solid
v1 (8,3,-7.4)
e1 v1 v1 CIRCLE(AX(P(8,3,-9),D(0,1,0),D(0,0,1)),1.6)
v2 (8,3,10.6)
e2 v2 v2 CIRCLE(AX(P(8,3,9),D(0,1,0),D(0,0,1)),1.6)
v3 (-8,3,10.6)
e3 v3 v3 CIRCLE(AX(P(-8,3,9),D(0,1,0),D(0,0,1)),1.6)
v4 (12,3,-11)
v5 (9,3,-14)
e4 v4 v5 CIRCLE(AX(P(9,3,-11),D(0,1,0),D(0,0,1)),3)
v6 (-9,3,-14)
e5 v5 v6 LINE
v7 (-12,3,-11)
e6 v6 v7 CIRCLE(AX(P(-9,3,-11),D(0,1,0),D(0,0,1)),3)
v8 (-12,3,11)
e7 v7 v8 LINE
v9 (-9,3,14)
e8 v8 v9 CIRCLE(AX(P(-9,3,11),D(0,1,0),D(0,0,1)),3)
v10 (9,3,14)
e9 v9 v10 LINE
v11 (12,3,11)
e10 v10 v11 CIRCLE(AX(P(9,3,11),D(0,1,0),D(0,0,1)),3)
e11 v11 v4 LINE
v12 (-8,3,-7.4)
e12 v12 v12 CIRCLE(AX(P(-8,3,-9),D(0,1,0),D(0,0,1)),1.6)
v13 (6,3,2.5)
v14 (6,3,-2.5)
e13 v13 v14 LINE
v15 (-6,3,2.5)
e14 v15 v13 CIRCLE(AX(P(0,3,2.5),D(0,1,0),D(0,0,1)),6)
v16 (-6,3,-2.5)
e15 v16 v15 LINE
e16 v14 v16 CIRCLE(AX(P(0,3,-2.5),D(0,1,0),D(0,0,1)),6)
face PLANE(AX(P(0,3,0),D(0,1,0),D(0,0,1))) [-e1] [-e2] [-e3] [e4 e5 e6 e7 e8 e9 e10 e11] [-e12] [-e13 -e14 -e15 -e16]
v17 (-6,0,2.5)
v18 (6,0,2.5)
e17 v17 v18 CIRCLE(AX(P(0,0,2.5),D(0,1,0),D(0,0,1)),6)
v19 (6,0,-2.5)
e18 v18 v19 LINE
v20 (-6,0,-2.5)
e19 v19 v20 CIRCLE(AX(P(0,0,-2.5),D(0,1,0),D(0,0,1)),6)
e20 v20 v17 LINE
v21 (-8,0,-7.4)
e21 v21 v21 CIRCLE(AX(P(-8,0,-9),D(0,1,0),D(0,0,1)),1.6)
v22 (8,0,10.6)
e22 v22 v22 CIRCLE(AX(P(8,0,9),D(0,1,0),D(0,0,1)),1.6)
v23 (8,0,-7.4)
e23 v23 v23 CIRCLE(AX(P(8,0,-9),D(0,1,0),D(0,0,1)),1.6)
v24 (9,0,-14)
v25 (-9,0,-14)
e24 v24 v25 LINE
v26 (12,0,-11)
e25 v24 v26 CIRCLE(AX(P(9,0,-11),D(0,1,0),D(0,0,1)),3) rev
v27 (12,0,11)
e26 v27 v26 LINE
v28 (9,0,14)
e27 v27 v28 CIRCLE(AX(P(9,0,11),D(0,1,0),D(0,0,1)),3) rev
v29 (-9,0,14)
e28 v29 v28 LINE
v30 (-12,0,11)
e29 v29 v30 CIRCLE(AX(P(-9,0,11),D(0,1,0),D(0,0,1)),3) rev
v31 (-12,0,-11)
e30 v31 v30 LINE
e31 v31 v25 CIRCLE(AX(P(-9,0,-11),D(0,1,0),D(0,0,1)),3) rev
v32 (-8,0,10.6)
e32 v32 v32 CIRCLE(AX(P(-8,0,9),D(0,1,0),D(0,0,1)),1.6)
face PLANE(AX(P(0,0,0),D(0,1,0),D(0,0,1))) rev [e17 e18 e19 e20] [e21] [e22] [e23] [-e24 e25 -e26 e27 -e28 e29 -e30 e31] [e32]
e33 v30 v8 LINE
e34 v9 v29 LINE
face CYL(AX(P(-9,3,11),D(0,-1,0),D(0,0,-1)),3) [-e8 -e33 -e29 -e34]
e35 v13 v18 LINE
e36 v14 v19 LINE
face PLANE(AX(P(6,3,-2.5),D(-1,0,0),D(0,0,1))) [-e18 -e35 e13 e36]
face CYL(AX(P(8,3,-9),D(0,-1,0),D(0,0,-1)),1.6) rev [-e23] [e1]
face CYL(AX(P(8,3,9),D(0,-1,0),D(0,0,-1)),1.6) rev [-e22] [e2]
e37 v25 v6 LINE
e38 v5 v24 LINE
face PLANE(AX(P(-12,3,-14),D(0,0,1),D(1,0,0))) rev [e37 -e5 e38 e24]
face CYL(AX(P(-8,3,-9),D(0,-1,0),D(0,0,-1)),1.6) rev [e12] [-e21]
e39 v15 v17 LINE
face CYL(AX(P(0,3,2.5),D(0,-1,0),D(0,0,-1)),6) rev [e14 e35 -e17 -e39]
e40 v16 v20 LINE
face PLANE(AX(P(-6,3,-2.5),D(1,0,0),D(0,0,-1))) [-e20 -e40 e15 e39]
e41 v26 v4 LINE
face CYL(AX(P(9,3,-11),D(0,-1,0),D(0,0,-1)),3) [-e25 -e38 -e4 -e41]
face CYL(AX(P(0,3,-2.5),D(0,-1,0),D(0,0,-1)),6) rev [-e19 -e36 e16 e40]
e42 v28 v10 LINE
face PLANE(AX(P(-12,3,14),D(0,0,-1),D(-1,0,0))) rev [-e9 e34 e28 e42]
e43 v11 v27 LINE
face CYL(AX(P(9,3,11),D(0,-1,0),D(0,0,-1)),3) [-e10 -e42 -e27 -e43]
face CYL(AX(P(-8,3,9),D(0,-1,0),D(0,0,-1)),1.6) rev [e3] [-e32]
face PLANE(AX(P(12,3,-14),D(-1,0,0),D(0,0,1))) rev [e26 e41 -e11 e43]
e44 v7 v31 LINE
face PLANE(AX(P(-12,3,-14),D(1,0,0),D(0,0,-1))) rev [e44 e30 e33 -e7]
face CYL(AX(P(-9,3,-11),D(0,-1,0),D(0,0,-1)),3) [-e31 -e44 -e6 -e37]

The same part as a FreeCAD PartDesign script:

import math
import FreeCAD as App
import Part
import Sketcher
from FreeCAD import Vector


def edges_at(feature, points):
    """Names of the edges that pass closest to the given points."""
    edges = feature.Shape.Edges
    near = lambda p: min(range(len(edges)), key=lambda i: edges[i].distToShape(Part.Vertex(*p))[0])
    return sorted({f"Edge{near(p) + 1}" for p in points})

doc = App.newDocument("Part")
params = doc.addObject("Spreadsheet::Sheet", "Params")
for row, (alias, value) in enumerate([
    ("sketch1_radius", "6 mm"),
    ("sketch1_diameter", "3.2 mm"),
    ("sketch1_width", "24 mm"),
    ("sketch1_height", "28 mm"),
    ("sketch1_height2", "5 mm"),
    ("pad1_length", "3 mm"),
    ("fillet_radius", "3 mm"),
], start=1):
    params.set(f"A{row}", alias)
    params.set(f"B{row}", "=" + value)
    params.setAlias(f"B{row}", alias)

body = doc.addObject("PartDesign::Body", "Body")

# Sketch on XZ plane
sketch1 = doc.addObject("Sketcher::SketchObject", "Sketch")
body.addObject(sketch1)
sketch1.AttachmentSupport = (doc.XZ_Plane, [""])
sketch1.MapMode = "FlatFace"
sketch1.addGeometry([
    Part.LineSegment(Vector(-12, -14, 0), Vector(-12, 14, 0)),  # 0
    Part.LineSegment(Vector(-12, 14, 0), Vector(12, 14, 0)),  # 1
    Part.LineSegment(Vector(12, 14, 0), Vector(12, -14, 0)),  # 2
    Part.LineSegment(Vector(12, -14, 0), Vector(-12, -14, 0)),  # 3
    Part.Circle(Vector(-8, 9, 0), Vector(0, 0, 1), 1.6),  # 4
    Part.Circle(Vector(8, 9, 0), Vector(0, 0, 1), 1.6),  # 5
    Part.Circle(Vector(-8, -9, 0), Vector(0, 0, 1), 1.6),  # 6
    Part.ArcOfCircle(Part.Circle(Vector(0, -2.5, 0), Vector(0, 0, 1), 6), math.radians(180), math.radians(360)),  # 7
    Part.LineSegment(Vector(6, -2.5, 0), Vector(6, 2.5, 0)),  # 8
    Part.ArcOfCircle(Part.Circle(Vector(0, 2.5, 0), Vector(0, 0, 1), 6), math.radians(0), math.radians(180)),  # 9
    Part.LineSegment(Vector(-6, 2.5, 0), Vector(-6, -2.5, 0)),  # 10
    Part.Circle(Vector(8, -9, 0), Vector(0, 0, 1), 1.6),  # 11
], False)
sketch1.addConstraint([
    Sketcher.Constraint("Coincident", 0, 2, 1, 1),
    Sketcher.Constraint("Coincident", 1, 2, 2, 1),
    Sketcher.Constraint("Coincident", 2, 2, 3, 1),
    Sketcher.Constraint("Coincident", 3, 2, 0, 1),
    Sketcher.Constraint("Tangent", 7, 2, 8, 1),
    Sketcher.Constraint("Tangent", 8, 2, 9, 1),
    Sketcher.Constraint("Tangent", 9, 2, 10, 1),
    Sketcher.Constraint("Tangent", 10, 2, 7, 1),
    Sketcher.Constraint("Vertical", 0),
    Sketcher.Constraint("Horizontal", 1),
    Sketcher.Constraint("Vertical", 2),
    Sketcher.Constraint("Horizontal", 3),
    Sketcher.Constraint("Vertical", 8),
    Sketcher.Constraint("Vertical", 10),
    Sketcher.Constraint("Equal", 4, 5),
    Sketcher.Constraint("Equal", 5, 6),
    Sketcher.Constraint("Equal", 6, 11),
    Sketcher.Constraint("Symmetric", 5, 3, 6, 3, -1, 1),
    Sketcher.Constraint("Symmetric", 7, 3, 9, 3, -1, 1),
    Sketcher.Constraint("Symmetric", 4, 3, 11, 3, -1, 1),
    Sketcher.Constraint("Symmetric", 0, 2, 2, 2, -1, 1),
    Sketcher.Constraint("Symmetric", 4, 3, 5, 3, -2),
    Sketcher.Constraint("Radius", 7, 6.0),
    Sketcher.Constraint("Diameter", 4, 3.2),
    Sketcher.Constraint("DistanceX", 1, 1, 1, 2, 24.0),
    Sketcher.Constraint("DistanceY", 0, 1, 0, 2, 28.0),
    Sketcher.Constraint("DistanceY", 8, 1, 8, 2, 5.0),
    Sketcher.Constraint("DistanceX", 4, 3, -1, 1, 8.0),
    Sketcher.Constraint("DistanceY", -1, 1, 4, 3, 9.0),
])
sketch1.setExpression("Constraints[22]", "Params.sketch1_radius")
sketch1.setExpression("Constraints[23]", "Params.sketch1_diameter")
sketch1.setExpression("Constraints[24]", "Params.sketch1_width")
sketch1.setExpression("Constraints[25]", "Params.sketch1_height")
sketch1.setExpression("Constraints[26]", "Params.sketch1_height2")
pad1 = doc.addObject("PartDesign::Pad", "Pad")
body.addObject(pad1)
pad1.Profile = sketch1
pad1.setExpression("Length", "Params.pad1_length")
pad1.Reversed = True
doc.recompute()

fillet = doc.addObject("PartDesign::Fillet", "Fillet")
body.addObject(fillet)
fillet.Base = (pad1, edges_at(pad1, [
    (12, 1.5, 14),
    (-12, 1.5, 14),
    (-12, 1.5, -14),
    (12, 1.5, -14),
]))
fillet.setExpression("Radius", "Params.fillet_radius")

doc.recompute()
